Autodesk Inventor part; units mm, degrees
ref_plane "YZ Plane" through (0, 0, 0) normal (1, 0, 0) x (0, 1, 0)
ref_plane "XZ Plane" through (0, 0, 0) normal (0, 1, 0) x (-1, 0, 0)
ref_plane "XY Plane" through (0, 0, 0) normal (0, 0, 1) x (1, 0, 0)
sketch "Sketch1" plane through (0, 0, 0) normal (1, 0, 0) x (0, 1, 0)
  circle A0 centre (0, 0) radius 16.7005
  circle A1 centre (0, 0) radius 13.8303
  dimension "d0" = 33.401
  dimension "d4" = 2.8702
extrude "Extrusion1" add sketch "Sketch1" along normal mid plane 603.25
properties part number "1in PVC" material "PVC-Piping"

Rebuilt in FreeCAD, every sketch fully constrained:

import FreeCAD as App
import Part
import Sketcher

V = App.Vector
Q = App.Units.Quantity

doc = App.newDocument("Part")
params = doc.addObject("Spreadsheet::Sheet", "Params")
for row, (alias, value) in enumerate([
    ("sketch1_diameter", "1.315 in"),
    ("sketch1_diameter2", "1.089 in"),
    ("pad1_length", "23.75 in"),
], start=1):
    params.set(f"A{row}", alias)
    params.set(f"B{row}", "=" + value)
    params.setAlias(f"B{row}", alias)

body = doc.addObject("PartDesign::Body", "Body")

# Sketch on YZ plane
sketch1 = doc.addObject("Sketcher::SketchObject", "Sketch")
body.addObject(sketch1)
sketch1.AttachmentSupport = (doc.YZ_Plane, [""])
sketch1.MapMode = "FlatFace"
sketch1.addGeometry([
    Part.Circle(V(0, 0, 0), V(0, 0, 1), 17),
    Part.Circle(V(0, 0, 0), V(0, 0, 1), 14),
], False)
sketch1.addConstraint([
    Sketcher.Constraint("Coincident", 0, 3, -1, 1),
    Sketcher.Constraint("Coincident", 1, 3, -1, 1),
    Sketcher.Constraint("Diameter", 0, Q("1.315 in")),
    Sketcher.Constraint("Diameter", 1, Q("1.089 in")),
])
sketch1.setExpression("Constraints[2]", "Params.sketch1_diameter")
sketch1.setExpression("Constraints[3]", "Params.sketch1_diameter2")
pad1 = doc.addObject("PartDesign::Pad", "Pad")
body.addObject(pad1)
pad1.Profile = sketch1
pad1.setExpression("Length", "Params.pad1_length")
pad1.Midplane = True

doc.recompute()
